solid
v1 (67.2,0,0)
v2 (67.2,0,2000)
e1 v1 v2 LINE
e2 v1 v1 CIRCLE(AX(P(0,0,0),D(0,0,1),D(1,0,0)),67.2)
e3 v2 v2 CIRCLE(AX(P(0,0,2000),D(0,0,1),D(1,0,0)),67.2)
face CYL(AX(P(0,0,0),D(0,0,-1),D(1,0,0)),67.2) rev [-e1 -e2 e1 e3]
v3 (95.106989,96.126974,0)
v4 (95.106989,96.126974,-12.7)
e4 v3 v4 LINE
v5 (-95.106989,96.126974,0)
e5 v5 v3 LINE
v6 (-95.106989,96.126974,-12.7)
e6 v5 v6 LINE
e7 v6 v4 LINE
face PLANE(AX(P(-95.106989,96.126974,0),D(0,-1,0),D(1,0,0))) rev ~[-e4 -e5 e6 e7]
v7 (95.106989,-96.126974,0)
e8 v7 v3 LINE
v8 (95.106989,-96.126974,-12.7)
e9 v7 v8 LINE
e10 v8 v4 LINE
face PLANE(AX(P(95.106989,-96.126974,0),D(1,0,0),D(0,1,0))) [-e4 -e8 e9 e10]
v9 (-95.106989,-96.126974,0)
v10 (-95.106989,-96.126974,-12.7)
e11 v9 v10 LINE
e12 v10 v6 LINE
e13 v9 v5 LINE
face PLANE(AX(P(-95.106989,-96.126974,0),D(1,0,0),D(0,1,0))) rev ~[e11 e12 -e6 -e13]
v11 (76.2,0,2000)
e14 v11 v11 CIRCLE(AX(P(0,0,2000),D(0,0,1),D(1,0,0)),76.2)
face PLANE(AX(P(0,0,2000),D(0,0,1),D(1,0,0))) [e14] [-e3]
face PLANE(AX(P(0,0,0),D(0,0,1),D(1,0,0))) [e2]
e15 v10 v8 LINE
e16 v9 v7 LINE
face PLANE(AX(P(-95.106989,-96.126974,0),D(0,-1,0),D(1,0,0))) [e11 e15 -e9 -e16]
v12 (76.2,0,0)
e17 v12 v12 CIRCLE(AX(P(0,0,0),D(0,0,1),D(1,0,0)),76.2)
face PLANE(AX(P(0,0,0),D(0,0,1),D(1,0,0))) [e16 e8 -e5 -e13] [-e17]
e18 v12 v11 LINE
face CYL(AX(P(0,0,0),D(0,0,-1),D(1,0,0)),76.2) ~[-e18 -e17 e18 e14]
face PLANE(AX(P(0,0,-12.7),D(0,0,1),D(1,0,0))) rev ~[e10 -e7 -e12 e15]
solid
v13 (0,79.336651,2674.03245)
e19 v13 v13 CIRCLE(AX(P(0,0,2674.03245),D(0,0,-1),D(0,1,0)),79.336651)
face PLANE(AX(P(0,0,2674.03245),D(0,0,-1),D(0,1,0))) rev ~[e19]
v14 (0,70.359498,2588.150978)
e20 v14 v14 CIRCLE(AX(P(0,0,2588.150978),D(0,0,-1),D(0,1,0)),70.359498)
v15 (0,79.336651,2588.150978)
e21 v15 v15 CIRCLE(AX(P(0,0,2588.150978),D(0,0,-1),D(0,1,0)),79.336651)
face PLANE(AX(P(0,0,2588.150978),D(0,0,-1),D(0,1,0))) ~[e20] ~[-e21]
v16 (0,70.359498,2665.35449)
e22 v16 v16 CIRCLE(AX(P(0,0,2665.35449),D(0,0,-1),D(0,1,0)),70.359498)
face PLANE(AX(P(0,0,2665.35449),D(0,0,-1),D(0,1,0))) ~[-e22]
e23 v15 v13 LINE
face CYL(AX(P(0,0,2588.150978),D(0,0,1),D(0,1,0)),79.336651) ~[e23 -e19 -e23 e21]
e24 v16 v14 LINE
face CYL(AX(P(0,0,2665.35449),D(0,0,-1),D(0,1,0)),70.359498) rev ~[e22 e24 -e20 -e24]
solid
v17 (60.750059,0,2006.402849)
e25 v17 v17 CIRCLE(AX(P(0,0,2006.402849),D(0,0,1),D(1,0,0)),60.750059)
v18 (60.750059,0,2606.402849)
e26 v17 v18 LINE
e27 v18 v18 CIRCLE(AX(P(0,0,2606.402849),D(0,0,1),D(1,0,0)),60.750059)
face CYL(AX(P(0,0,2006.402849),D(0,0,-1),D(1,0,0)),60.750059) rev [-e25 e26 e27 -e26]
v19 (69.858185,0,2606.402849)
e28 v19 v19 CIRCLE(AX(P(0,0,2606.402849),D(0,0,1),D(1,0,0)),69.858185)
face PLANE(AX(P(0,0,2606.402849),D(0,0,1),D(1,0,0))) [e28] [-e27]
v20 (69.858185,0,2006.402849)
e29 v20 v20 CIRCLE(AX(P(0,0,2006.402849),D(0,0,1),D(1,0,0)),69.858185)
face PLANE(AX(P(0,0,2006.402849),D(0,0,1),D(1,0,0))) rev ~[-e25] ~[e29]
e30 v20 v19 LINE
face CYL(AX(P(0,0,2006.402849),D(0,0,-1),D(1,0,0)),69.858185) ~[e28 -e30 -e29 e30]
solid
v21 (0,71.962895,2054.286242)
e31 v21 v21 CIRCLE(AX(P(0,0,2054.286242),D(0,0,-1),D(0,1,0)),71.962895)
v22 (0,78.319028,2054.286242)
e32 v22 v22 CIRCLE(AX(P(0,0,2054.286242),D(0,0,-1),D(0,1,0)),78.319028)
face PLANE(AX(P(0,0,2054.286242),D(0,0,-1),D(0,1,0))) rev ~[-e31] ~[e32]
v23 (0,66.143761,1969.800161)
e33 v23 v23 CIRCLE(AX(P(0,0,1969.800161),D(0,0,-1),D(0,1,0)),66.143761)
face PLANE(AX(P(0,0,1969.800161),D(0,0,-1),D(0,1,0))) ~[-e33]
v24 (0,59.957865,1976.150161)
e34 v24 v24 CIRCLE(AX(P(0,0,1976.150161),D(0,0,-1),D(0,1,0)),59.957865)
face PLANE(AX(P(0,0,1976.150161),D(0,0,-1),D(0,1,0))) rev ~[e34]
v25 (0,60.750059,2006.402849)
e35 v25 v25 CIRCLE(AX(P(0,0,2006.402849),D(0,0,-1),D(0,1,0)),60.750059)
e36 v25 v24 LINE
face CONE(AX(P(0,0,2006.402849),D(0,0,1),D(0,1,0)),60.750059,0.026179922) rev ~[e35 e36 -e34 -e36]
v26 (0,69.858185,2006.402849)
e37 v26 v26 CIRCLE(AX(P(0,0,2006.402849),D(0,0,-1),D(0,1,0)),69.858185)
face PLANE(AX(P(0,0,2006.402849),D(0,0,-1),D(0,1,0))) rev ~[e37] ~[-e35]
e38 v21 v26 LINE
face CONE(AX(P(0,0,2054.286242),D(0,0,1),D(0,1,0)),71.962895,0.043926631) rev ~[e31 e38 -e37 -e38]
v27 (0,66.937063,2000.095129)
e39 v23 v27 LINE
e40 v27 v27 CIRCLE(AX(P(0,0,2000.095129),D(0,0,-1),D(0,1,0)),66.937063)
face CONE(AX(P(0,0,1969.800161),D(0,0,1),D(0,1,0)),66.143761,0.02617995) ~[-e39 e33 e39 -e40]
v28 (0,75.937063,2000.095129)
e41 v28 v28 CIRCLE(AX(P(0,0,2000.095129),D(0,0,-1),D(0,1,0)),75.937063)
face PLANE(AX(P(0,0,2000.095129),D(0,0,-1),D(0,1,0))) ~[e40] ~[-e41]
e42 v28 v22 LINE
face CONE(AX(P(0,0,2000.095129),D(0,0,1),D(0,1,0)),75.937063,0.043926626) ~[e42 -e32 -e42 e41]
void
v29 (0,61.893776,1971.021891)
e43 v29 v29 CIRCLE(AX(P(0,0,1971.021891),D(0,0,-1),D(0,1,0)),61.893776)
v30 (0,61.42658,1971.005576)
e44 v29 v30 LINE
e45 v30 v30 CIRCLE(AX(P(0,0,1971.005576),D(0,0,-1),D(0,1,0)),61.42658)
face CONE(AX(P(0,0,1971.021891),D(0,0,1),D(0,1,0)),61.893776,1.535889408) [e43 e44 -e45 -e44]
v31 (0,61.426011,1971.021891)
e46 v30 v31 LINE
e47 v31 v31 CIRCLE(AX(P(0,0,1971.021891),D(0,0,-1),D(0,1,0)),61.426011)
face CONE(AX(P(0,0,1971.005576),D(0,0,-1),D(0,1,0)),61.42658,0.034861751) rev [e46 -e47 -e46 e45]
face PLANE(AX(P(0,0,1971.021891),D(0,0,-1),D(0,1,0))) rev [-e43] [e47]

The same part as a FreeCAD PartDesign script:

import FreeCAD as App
import Part
import Sketcher
from FreeCAD import Vector
Q = App.Units.Quantity

doc = App.newDocument("Part")
body = doc.addObject("PartDesign::Body", "Body")

sketch1 = body.newObject("Sketcher::SketchObject", "Sketch")
sketch1.AttachmentSupport = (doc.getObject("XY_Plane"), [""])
sketch1.MapMode = "FlatFace"
sketch1.addGeometry([
    Part.Circle(Vector(0, 0, 0), Vector(0, 0, 1), 76),
    Part.Circle(Vector(0, 0, 0), Vector(0, 0, 1), 67),
], False)
sketch1.addConstraint([
    Sketcher.Constraint("Coincident", 0, 3, -1, 1),
    Sketcher.Constraint("Coincident", 1, 3, -1, 1),
    Sketcher.Constraint("Diameter", 0, 152.4),
    Sketcher.Constraint("Diameter", 1, 134.4),
])
pad1 = body.newObject("PartDesign::Pad", "Pad")
pad1.Profile = sketch1
pad1.Length = 2000

sketch2 = body.newObject("Sketcher::SketchObject", "Sketch001")
sketch2.AttachmentSupport = (doc.getObject("XY_Plane"), [""])
sketch2.MapMode = "FlatFace"
sketch2.addGeometry([
    Part.LineSegment(Vector(-95, 96, 0), Vector(-95, -96, 0)),
    Part.LineSegment(Vector(-95, -96, 0), Vector(95, -96, 0)),
    Part.LineSegment(Vector(95, -96, 0), Vector(95, 96, 0)),
    Part.LineSegment(Vector(95, 96, 0), Vector(-95, 96, 0)),
], False)
sketch2.addConstraint([
    Sketcher.Constraint("Coincident", 0, 2, 1, 1),
    Sketcher.Constraint("Coincident", 1, 2, 2, 1),
    Sketcher.Constraint("Coincident", 2, 2, 3, 1),
    Sketcher.Constraint("Coincident", 3, 2, 0, 1),
    Sketcher.Constraint("Vertical", 0),
    Sketcher.Constraint("Horizontal", 1),
    Sketcher.Constraint("Vertical", 2),
    Sketcher.Constraint("Horizontal", 3),
    Sketcher.Constraint("Symmetric", 0, 2, 2, 2, -1, 1),
    Sketcher.Constraint("DistanceX", 1, 1, 1, 2, 190.213978),
    Sketcher.Constraint("DistanceY", 0, 2, 0, 1, 192.253948),
])
pad2 = body.newObject("PartDesign::Pad", "Pad001")
pad2.Profile = sketch2
pad2.Length = 12.7
pad2.Reversed = True
body2 = doc.addObject("PartDesign::Body", "Body001")

sketch3 = body2.newObject("Sketcher::SketchObject", "Sketch002")
sketch3.AttachmentSupport = (doc.getObject("YZ_Plane001"), [""])
sketch3.MapMode = "FlatFace"
sketch3.addGeometry([
    Part.LineSegment(Vector(66.937063, 2000.095129, 0), Vector(75.937063, 2000.095129, 0)),
    Part.LineSegment(Vector(75.937063, 2000.095129, 0), Vector(78.319028, 2054.286242, 0)),
    Part.LineSegment(Vector(78.319028, 2054.286242, 0), Vector(71.962895, 2054.286242, 0)),
    Part.LineSegment(Vector(71.962895, 2054.286242, 0), Vector(69.858185, 2006.402849, 0)),
    Part.LineSegment(Vector(69.858185, 2006.402849, 0), Vector(60.750059, 2006.402849, 0)),
    Part.LineSegment(Vector(60.750059, 2006.402849, 0), Vector(59.957865, 1976.150161, 0)),
    Part.LineSegment(Vector(59.957865, 1976.150161, 0), Vector(0, 1976.150161, 0)),
    Part.LineSegment(Vector(0, 1976.150161, 0), Vector(0, 1969.800161, 0)),
    Part.LineSegment(Vector(0, 1969.800161, 0), Vector(66.143761, 1969.800161, 0)),
    Part.LineSegment(Vector(66.143761, 1969.800161, 0), Vector(66.937063, 2000.095129, 0)),
    Part.LineSegment(Vector(61.42658, 1971.005576, 0), Vector(61.426011, 1971.021891, 0)),
    Part.LineSegment(Vector(61.426011, 1971.021891, 0), Vector(61.893776, 1971.021891, 0)),
    Part.LineSegment(Vector(61.893776, 1971.021891, 0), Vector(61.42658, 1971.005576, 0)),
], False)
sketch3.addConstraint([
    Sketcher.Constraint("Coincident", 0, 2, 1, 1),
    Sketcher.Constraint("Coincident", 1, 2, 2, 1),
    Sketcher.Constraint("Coincident", 2, 2, 3, 1),
    Sketcher.Constraint("Coincident", 3, 2, 4, 1),
    Sketcher.Constraint("Coincident", 4, 2, 5, 1),
    Sketcher.Constraint("Coincident", 5, 2, 6, 1),
    Sketcher.Constraint("Coincident", 6, 2, 7, 1),
    Sketcher.Constraint("Coincident", 7, 2, 8, 1),
    Sketcher.Constraint("Coincident", 8, 2, 9, 1),
    Sketcher.Constraint("Coincident", 9, 2, 0, 1),
    Sketcher.Constraint("Coincident", 10, 2, 11, 1),
    Sketcher.Constraint("Coincident", 11, 2, 12, 1),
    Sketcher.Constraint("Coincident", 12, 2, 10, 1),
    Sketcher.Constraint("Horizontal", 0),
    Sketcher.Constraint("Horizontal", 2),
    Sketcher.Constraint("Horizontal", 4),
    Sketcher.Constraint("Horizontal", 6),
    Sketcher.Constraint("Vertical", 7),
    Sketcher.Constraint("Horizontal", 8),
    Sketcher.Constraint("Horizontal", 11),
    Sketcher.Constraint("PointOnObject", 6, 2, -2),
    Sketcher.Constraint("Parallel", 1, 3),
    Sketcher.Constraint("Parallel", 5, 9),
    Sketcher.Constraint("DistanceX", 0, 1, 0, 2, 9.0),
    Sketcher.Constraint("Angle", 12, Q("-177.999981 deg")),
    Sketcher.Constraint("Angle", 5, Q("-91.499999 deg")),
    Sketcher.Constraint("DistanceY", 7, 2, 7, 1, 6.35),
    Sketcher.Constraint("DistanceX", 8, 1, 8, 2, 66.143761),
    Sketcher.Constraint("DistanceX", 8, 2, 0, 2, 9.793302),
    Sketcher.Constraint("DistanceX", 4, 2, 8, 2, 5.393702),
    Sketcher.Constraint("Distance", 5, 30.263058),
    Sketcher.Constraint("Distance", 12, 0.467481),
    Sketcher.Constraint("DistanceX", 2, 2, 2, 1, 6.356133),
    Sketcher.Constraint("DistanceX", 4, 2, 4, 1, 9.108126),
    Sketcher.Constraint("DistanceX", 11, 1, 11, 2, 0.467765),
    Sketcher.Constraint("DistanceY", -1, 1, 0, 2, 2000.095129),
    Sketcher.Constraint("DistanceX", -1, 1, 1, 2, 78.319028),
    Sketcher.Constraint("DistanceX", -1, 1, 10, 2, 61.426011),
    Sketcher.Constraint("DistanceY", -1, 1, 10, 2, 1971.021891),
])
revolution = body2.newObject("PartDesign::Revolution", "Revolution")
revolution.Profile = sketch3
revolution.ReferenceAxis = (sketch3, ["V_Axis"])
revolution.Angle = 360
body3 = doc.addObject("PartDesign::Body", "Body002")

sketch4 = body3.newObject("Sketcher::SketchObject", "Sketch003")
sketch4.AttachmentSupport = (doc.getObject("XY_Plane002"), [""])
sketch4.MapMode = "FlatFace"
sketch4.AttachmentOffset = App.Placement(Vector(0, 0, 2006.402849), App.Rotation())
sketch4.addGeometry([
    Part.Circle(Vector(0, 0, 0), Vector(0, 0, 1), 70),
    Part.Circle(Vector(0, 0, 0), Vector(0, 0, 1), 61),
], False)
sketch4.addConstraint([
    Sketcher.Constraint("Coincident", 0, 3, -1, 1),
    Sketcher.Constraint("Coincident", 1, 3, -1, 1),
    Sketcher.Constraint("Diameter", 0, 139.71637),
    Sketcher.Constraint("Diameter", 1, 121.500118),
])
pad3 = body3.newObject("PartDesign::Pad", "Pad002")
pad3.Profile = sketch4
pad3.Length = 600
body4 = doc.addObject("PartDesign::Body", "Body003")

sketch5 = body4.newObject("Sketcher::SketchObject", "Sketch004")
sketch5.AttachmentSupport = (doc.getObject("YZ_Plane003"), [""])
sketch5.MapMode = "FlatFace"
sketch5.addGeometry([
    Part.LineSegment(Vector(70, 2665, 0), Vector(70, 2588, 0)),
    Part.LineSegment(Vector(70, 2588, 0), Vector(79, 2588, 0)),
    Part.LineSegment(Vector(79, 2588, 0), Vector(79, 2674, 0)),
    Part.LineSegment(Vector(79, 2674, 0), Vector(0, 2674, 0)),
    Part.LineSegment(Vector(0, 2674, 0), Vector(0, 2665, 0)),
    Part.LineSegment(Vector(0, 2665, 0), Vector(70, 2665, 0)),
], False)
sketch5.addConstraint([
    Sketcher.Constraint("Coincident", 0, 2, 1, 1),
    Sketcher.Constraint("Coincident", 1, 2, 2, 1),
    Sketcher.Constraint("Coincident", 2, 2, 3, 1),
    Sketcher.Constraint("Coincident", 3, 2, 4, 1),
    Sketcher.Constraint("Coincident", 4, 2, 5, 1),
    Sketcher.Constraint("Coincident", 5, 2, 0, 1),
    Sketcher.Constraint("Vertical", 0),
    Sketcher.Constraint("Horizontal", 1),
    Sketcher.Constraint("Vertical", 2),
    Sketcher.Constraint("Horizontal", 3),
    Sketcher.Constraint("Vertical", 4),
    Sketcher.Constraint("Horizontal", 5),
    Sketcher.Constraint("PointOnObject", 3, 2, -2),
    Sketcher.Constraint("DistanceX", 5, 1, 5, 2, 70.359498),
    Sketcher.Constraint("DistanceX", 3, 2, 3, 1, 79.336651),
    Sketcher.Constraint("DistanceY", 4, 2, 4, 1, 8.67796),
    Sketcher.Constraint("DistanceY", 0, 2, 0, 1, 77.203512),
    Sketcher.Constraint("DistanceY", -1, 1, 0, 2, 2588.150978),
])
revolution2 = body4.newObject("PartDesign::Revolution", "Revolution001")
revolution2.Profile = sketch5
revolution2.ReferenceAxis = (sketch5, ["V_Axis"])
revolution2.Angle = 360

doc.recompute()
